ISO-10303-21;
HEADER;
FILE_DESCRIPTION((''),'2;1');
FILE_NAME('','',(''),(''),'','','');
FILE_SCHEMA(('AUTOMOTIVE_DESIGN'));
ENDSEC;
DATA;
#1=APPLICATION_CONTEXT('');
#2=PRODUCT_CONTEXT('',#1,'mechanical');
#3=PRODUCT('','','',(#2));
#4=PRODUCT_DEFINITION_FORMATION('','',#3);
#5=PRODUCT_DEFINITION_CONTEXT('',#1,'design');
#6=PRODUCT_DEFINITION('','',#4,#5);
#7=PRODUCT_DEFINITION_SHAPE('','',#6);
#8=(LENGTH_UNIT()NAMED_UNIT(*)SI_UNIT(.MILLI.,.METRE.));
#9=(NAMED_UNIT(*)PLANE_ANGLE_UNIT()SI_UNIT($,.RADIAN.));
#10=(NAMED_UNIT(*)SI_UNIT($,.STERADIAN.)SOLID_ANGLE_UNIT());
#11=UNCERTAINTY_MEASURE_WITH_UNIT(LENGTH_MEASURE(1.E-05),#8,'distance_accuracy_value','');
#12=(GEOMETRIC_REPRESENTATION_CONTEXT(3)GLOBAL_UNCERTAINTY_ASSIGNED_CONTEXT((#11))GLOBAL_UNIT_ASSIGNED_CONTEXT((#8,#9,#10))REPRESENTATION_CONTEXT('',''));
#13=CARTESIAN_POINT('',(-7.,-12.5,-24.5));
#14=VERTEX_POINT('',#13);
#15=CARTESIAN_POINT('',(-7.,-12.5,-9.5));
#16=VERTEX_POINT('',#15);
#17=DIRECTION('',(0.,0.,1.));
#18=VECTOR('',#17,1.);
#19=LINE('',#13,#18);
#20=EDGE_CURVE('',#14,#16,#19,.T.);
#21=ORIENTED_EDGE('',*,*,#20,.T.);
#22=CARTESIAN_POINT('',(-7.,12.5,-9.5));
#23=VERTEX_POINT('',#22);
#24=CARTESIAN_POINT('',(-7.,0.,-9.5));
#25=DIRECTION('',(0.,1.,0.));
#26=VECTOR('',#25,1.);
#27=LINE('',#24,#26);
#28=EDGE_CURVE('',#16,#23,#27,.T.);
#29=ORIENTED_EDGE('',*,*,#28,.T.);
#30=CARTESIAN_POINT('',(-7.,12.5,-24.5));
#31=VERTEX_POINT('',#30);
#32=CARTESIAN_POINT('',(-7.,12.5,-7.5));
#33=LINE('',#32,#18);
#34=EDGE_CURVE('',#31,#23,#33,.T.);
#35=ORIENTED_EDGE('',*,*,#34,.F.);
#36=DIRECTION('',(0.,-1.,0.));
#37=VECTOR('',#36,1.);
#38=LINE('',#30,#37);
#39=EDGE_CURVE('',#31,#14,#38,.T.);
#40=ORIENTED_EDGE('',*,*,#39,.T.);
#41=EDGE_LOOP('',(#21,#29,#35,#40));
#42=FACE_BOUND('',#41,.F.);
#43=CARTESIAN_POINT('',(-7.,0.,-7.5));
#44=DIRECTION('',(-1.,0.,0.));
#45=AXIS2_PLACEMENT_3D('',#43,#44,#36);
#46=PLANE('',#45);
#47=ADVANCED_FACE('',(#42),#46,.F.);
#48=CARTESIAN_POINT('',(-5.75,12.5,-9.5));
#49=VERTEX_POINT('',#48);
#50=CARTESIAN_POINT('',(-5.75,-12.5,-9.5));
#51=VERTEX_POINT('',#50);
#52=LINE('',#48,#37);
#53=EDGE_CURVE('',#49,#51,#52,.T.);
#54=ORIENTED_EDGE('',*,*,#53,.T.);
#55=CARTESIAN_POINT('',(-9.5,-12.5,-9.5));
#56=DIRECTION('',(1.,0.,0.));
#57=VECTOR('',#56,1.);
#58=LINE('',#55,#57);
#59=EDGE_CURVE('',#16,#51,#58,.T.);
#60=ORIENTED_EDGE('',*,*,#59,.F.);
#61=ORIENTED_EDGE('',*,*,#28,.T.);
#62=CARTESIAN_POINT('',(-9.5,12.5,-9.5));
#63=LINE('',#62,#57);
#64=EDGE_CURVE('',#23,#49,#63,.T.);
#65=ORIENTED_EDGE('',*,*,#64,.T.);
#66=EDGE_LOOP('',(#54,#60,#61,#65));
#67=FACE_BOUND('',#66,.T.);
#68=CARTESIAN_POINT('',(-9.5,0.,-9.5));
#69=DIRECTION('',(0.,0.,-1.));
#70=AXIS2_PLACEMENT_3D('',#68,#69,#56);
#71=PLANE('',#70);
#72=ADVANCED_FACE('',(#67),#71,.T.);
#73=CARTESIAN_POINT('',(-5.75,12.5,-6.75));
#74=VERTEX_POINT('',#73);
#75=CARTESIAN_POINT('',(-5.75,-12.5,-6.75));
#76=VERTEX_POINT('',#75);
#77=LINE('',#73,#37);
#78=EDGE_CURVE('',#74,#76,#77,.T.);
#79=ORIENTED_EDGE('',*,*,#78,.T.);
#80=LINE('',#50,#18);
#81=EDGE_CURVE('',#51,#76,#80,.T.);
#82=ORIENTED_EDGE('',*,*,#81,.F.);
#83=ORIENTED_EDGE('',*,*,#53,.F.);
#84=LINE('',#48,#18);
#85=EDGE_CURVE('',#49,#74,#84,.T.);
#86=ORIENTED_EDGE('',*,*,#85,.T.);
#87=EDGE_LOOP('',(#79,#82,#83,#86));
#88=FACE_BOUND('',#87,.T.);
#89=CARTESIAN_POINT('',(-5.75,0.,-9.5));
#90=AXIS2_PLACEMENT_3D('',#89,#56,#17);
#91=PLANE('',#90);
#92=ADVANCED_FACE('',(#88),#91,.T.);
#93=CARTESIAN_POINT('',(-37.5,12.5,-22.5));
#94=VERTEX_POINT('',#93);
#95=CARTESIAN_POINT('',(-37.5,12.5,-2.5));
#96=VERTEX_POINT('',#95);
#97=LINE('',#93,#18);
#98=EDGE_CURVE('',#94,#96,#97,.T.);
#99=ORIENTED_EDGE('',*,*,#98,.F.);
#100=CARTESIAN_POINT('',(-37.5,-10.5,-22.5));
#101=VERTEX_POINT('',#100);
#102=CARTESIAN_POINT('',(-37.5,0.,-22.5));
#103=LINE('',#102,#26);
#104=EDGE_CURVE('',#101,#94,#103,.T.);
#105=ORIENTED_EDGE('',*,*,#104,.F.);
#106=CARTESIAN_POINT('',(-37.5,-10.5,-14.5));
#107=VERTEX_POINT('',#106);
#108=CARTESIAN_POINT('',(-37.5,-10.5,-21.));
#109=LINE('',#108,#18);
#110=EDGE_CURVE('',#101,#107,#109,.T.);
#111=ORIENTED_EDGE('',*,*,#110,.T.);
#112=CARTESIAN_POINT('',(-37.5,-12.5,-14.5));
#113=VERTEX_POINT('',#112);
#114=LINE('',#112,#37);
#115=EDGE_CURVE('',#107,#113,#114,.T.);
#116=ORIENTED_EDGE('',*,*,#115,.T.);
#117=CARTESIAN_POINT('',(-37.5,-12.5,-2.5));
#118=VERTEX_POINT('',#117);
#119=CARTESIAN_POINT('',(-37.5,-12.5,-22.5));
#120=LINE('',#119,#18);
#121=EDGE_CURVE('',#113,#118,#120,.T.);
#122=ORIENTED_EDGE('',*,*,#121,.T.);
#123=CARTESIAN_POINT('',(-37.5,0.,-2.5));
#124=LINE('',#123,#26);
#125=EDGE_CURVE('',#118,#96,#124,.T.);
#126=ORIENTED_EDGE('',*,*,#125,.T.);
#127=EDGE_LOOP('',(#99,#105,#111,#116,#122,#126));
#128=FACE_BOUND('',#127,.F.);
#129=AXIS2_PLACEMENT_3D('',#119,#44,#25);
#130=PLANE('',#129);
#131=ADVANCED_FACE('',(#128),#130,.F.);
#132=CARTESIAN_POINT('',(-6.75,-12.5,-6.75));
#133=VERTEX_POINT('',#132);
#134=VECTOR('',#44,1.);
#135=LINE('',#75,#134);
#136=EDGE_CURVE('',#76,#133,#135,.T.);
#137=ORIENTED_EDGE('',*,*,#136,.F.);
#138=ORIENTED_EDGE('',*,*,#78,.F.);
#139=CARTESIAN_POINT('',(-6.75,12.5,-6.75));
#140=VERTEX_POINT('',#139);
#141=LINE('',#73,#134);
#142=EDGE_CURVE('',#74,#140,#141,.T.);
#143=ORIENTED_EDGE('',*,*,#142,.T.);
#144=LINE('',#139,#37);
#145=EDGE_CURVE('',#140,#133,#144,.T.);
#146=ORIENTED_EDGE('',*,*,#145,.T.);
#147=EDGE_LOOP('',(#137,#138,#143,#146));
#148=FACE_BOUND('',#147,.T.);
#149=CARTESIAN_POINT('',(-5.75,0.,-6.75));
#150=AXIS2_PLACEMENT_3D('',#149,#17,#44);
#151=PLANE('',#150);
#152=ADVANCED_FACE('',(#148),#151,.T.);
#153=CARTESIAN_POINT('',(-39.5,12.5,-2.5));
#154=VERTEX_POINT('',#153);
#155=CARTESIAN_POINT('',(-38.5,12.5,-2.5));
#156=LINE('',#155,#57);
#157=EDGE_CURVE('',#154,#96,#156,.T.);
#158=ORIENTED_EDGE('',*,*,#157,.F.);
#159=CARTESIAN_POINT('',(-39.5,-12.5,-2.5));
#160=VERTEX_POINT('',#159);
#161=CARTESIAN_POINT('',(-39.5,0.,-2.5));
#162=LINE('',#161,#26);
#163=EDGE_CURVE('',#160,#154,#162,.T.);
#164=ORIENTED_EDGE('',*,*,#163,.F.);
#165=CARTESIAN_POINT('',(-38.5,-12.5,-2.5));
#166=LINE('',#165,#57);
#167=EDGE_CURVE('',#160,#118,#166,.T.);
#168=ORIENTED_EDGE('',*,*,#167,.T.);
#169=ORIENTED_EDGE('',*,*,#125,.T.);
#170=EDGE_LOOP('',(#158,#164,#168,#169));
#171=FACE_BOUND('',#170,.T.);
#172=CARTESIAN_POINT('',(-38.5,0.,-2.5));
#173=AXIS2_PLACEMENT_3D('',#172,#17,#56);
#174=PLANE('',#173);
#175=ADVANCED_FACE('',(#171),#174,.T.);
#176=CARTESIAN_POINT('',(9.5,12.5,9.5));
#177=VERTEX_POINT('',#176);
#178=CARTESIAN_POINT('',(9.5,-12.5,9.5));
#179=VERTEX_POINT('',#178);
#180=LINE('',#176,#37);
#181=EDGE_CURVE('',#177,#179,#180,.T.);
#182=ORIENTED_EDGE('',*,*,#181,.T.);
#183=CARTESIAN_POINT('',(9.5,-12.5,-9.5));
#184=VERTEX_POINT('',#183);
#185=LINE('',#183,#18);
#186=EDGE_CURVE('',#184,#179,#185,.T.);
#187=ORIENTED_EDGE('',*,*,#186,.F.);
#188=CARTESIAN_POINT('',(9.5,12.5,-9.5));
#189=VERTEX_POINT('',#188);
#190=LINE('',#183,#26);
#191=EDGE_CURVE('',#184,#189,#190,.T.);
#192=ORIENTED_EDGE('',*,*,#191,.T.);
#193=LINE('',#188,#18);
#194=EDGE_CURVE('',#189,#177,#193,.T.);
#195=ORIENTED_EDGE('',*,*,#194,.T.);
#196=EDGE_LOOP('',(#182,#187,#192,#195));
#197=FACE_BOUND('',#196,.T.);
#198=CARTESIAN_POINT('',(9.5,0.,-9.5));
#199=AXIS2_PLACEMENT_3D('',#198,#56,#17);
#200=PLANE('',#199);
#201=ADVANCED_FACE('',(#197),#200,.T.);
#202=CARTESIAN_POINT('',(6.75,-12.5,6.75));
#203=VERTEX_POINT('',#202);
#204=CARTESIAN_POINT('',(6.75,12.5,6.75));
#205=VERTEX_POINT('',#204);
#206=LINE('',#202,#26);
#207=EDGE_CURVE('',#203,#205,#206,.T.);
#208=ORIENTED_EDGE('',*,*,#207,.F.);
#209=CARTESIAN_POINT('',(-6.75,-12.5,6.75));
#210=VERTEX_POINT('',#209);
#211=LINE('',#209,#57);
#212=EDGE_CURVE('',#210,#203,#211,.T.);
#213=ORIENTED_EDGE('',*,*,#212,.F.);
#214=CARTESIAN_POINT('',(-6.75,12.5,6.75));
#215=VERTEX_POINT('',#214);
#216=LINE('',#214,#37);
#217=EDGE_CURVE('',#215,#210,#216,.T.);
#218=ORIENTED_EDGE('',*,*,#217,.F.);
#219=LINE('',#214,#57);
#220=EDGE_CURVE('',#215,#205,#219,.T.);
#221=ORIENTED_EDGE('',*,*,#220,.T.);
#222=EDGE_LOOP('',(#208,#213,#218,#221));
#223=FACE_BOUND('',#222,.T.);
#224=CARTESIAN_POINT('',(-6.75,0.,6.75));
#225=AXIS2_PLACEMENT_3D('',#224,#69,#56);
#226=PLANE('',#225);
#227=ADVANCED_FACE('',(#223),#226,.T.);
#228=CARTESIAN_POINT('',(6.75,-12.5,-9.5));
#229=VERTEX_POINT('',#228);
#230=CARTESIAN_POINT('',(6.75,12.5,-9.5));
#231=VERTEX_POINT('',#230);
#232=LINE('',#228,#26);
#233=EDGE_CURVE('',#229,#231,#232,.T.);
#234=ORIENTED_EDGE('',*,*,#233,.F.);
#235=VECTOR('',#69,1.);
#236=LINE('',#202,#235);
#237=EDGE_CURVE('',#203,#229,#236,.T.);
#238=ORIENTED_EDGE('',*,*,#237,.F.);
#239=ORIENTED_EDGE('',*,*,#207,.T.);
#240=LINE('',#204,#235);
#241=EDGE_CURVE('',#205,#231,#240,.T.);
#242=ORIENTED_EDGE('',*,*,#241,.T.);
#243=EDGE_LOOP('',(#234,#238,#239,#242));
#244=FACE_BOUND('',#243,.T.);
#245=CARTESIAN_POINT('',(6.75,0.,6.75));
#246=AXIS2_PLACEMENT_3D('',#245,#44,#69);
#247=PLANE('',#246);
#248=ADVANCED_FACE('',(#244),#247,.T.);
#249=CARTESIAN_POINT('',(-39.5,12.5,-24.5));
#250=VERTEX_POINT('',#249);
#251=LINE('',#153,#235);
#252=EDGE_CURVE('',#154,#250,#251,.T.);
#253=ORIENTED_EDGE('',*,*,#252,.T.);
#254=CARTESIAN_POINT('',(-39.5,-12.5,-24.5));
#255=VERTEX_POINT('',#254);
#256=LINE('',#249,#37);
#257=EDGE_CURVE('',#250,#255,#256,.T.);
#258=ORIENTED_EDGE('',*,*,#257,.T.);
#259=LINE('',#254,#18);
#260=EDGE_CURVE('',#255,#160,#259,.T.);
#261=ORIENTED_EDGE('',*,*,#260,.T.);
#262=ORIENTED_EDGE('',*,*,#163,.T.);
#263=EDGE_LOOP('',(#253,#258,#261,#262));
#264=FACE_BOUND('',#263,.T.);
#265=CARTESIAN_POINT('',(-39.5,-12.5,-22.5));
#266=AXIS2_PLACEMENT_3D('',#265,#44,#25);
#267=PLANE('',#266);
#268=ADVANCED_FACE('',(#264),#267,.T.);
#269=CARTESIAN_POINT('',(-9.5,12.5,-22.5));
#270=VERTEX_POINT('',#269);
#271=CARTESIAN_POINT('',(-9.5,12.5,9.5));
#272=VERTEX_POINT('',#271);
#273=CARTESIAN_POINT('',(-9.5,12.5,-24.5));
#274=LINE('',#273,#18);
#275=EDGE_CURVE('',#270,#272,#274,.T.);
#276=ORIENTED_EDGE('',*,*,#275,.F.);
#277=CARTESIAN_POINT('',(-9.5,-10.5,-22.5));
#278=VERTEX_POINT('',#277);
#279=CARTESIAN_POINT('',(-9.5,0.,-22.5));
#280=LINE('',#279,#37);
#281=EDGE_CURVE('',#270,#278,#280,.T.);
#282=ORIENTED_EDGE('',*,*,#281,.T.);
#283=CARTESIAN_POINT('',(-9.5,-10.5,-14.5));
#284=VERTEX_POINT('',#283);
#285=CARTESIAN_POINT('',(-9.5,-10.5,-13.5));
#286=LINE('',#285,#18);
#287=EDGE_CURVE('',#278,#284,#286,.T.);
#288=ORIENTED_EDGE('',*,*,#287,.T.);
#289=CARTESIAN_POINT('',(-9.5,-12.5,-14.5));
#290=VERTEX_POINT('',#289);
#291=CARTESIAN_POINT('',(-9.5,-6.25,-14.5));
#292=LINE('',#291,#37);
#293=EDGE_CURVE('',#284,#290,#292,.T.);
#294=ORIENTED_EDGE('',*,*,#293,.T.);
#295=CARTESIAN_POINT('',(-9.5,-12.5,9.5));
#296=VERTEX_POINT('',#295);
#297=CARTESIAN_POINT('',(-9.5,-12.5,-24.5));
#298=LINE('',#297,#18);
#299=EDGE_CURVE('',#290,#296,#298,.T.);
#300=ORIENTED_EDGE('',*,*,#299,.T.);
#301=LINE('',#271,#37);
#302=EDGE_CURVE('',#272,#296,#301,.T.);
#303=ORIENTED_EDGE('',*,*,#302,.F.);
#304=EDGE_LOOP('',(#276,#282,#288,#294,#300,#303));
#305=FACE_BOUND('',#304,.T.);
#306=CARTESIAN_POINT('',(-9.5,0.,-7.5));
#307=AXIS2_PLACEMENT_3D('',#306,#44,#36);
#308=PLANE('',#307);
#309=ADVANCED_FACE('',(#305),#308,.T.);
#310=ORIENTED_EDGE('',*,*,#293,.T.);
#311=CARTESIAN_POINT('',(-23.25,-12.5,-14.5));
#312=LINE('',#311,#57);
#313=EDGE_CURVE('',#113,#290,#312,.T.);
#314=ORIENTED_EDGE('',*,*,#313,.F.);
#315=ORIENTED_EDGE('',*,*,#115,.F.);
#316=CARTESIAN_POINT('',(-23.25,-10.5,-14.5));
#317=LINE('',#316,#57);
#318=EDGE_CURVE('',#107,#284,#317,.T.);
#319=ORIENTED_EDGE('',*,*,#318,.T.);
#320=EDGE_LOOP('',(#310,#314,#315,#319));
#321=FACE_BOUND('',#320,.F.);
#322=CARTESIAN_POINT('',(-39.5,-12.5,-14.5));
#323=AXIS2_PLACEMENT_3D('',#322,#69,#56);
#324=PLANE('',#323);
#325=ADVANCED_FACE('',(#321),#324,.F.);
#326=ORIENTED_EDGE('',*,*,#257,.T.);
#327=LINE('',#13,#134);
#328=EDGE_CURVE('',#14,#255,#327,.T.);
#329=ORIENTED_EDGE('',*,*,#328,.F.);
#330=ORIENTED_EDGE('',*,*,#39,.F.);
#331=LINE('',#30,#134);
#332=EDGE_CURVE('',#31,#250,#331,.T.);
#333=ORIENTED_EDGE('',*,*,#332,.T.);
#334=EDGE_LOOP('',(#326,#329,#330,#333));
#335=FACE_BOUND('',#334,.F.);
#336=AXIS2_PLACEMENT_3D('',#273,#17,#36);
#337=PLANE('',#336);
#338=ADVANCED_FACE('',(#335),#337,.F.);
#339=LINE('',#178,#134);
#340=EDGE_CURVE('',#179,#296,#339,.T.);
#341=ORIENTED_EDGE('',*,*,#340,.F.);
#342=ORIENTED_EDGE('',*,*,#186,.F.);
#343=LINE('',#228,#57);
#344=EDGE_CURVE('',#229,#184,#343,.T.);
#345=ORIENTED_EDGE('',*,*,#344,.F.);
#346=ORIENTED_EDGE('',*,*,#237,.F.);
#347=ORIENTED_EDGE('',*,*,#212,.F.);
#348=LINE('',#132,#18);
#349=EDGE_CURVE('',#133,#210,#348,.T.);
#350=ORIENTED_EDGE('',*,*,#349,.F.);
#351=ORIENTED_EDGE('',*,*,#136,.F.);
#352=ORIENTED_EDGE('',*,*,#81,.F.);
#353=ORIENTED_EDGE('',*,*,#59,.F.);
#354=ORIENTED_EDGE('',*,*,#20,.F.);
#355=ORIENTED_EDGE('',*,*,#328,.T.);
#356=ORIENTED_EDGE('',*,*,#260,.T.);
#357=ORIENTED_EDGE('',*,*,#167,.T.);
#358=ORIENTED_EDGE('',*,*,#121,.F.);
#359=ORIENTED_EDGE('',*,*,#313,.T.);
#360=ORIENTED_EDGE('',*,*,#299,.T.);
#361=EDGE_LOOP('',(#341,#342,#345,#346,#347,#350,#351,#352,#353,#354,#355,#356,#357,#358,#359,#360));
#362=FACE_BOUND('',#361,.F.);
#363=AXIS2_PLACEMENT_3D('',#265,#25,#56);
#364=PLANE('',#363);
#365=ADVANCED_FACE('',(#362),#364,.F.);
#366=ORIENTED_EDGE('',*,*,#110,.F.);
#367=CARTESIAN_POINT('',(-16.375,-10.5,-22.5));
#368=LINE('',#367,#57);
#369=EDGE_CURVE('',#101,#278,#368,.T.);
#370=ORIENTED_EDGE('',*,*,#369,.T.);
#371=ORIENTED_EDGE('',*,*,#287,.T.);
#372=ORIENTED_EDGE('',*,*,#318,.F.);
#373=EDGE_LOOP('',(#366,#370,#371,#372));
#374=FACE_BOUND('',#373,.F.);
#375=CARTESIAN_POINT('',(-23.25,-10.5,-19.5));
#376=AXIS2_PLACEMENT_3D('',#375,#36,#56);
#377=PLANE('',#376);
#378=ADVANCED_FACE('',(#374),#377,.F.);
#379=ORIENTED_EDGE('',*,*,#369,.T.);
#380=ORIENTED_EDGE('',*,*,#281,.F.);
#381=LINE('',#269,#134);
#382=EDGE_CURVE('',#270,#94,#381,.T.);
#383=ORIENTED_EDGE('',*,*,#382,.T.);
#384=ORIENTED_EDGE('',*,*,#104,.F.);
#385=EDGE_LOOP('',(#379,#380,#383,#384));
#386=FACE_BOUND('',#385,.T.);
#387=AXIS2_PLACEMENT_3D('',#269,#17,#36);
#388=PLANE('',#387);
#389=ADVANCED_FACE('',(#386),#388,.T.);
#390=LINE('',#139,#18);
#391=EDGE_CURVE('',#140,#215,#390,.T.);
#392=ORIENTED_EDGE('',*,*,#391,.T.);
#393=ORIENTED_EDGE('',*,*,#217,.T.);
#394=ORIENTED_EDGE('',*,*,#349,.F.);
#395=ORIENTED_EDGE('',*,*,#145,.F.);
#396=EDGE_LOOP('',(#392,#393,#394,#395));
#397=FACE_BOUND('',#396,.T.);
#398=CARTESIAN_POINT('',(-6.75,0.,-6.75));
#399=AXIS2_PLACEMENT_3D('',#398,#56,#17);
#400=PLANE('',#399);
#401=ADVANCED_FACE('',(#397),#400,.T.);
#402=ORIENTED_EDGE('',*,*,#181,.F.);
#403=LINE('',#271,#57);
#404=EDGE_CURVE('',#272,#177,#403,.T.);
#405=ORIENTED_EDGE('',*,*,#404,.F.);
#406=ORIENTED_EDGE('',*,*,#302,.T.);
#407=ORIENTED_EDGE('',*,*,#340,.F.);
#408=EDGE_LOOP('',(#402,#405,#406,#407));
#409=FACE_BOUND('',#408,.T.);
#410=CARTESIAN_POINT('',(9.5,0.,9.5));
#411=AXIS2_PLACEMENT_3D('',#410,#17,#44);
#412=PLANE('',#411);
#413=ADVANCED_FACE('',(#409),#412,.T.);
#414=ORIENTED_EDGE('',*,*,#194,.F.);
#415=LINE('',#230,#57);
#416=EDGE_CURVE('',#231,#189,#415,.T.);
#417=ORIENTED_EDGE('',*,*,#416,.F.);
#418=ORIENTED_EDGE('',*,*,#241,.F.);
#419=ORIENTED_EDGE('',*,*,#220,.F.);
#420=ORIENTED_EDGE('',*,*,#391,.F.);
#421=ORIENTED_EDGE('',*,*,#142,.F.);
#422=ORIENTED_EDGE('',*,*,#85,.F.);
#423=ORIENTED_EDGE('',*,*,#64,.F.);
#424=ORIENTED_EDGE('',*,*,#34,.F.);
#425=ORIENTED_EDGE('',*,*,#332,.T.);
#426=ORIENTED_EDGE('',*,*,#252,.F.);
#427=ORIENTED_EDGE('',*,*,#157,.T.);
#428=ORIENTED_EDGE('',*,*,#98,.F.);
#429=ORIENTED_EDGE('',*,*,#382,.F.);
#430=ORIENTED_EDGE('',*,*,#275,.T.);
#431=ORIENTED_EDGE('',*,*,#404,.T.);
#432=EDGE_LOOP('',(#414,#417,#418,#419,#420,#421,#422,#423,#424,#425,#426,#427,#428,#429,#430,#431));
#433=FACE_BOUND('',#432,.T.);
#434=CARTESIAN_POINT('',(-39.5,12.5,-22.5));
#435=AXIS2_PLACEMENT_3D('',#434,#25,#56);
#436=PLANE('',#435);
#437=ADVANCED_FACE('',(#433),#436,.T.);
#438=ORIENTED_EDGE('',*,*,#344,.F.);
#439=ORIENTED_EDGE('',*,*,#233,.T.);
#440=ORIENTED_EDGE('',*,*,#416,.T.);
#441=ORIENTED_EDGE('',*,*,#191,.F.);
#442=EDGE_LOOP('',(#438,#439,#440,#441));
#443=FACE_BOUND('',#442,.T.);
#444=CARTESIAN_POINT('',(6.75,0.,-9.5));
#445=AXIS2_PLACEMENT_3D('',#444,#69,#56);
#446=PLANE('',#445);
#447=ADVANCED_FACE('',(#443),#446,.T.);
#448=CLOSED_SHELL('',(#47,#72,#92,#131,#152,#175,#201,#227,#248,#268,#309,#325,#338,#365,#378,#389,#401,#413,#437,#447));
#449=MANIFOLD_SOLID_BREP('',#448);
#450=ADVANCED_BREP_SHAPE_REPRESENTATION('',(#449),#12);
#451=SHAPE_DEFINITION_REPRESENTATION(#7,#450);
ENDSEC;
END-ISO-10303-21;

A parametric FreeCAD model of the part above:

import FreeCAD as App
import Part
import Sketcher

V = App.Vector
Q = App.Units.Quantity


def add_polygon(sketch, points):
    """Adds a closed chain of lines whose ends are joined by coincident constraints."""
    first, n = sketch.GeometryCount, len(points)
    for a, b in zip(points, points[1:] + points[:1]):
        sketch.addGeometry(Part.LineSegment(App.Vector(*a, 0), App.Vector(*b, 0)), False)
    for i in range(n):
        sketch.addConstraint(Sketcher.Constraint("Coincident", first + i, 2, first + (i + 1) % n, 1))

doc = App.newDocument("Part")
body = doc.addObject("PartDesign::Body", "Body")

sketch1 = doc.addObject("Sketcher::SketchObject", "Sketch")
body.addObject(sketch1)
sketch1.AttachmentSupport = (doc.XZ_Plane, [""])
sketch1.MapMode = "FlatFace"
add_polygon(sketch1, [(9.5, -9.5), (9.5, 9.5), (-9.5, 9.5), (-9.5, -9.5), (-5.8, -9.5), (-5.8, -6.8), (-6.8, -6.8), (-6.8, 6.8), (6.8, 6.8), (6.8, -9.5)])
sketch1.addConstraint([
    Sketcher.Constraint("Vertical", 0),
    Sketcher.Constraint("Horizontal", 1),
    Sketcher.Constraint("Vertical", 2),
    Sketcher.Constraint("Horizontal", 3),
    Sketcher.Constraint("Vertical", 4),
    Sketcher.Constraint("Horizontal", 5),
    Sketcher.Constraint("Vertical", 6),
    Sketcher.Constraint("Horizontal", 7),
    Sketcher.Constraint("Vertical", 8),
    Sketcher.Constraint("Horizontal", 9),
    Sketcher.Constraint("Symmetric", 0, 2, 2, 2, -1, 1),
    Sketcher.Constraint("Symmetric", 5, 2, 7, 2, -1, 1),
    Sketcher.Constraint("Horizontal", 3, 2, 8, 2),
    Sketcher.Constraint("Equal", 1, 0),
    Sketcher.Constraint("Equal", 9, 4),
    Sketcher.Constraint("DistanceX", 1, 2, 1, 1, Q("19 mm")),
    Sketcher.Constraint("DistanceX", 5, 2, 5, 1, Q("1 mm")),
    Sketcher.Constraint("DistanceX", 7, 1, 7, 2, Q("13.5 mm")),
])
pad1 = doc.addObject("PartDesign::Pad", "Pad")
body.addObject(pad1)
pad1.Profile = sketch1
pad1.Length = 25
pad1.Midplane = True

sketch2 = doc.addObject("Sketcher::SketchObject", "Sketch001")
body.addObject(sketch2)
sketch2.AttachmentSupport = (doc.YZ_Plane, [""])
sketch2.MapMode = "FlatFace"
sketch2.AttachmentOffset = App.Placement(V(0, 0, -9.5), App.Rotation())
add_polygon(sketch2, [(12, 10), (12, -24), (-12, -24), (-12, 10)])
sketch2.addConstraint([
    Sketcher.Constraint("Vertical", 0),
    Sketcher.Constraint("Horizontal", 1),
    Sketcher.Constraint("Vertical", 2),
    Sketcher.Constraint("Horizontal", 3),
    Sketcher.Constraint("DistanceX", 1, 2, 1, 1, Q("25 mm")),
    Sketcher.Constraint("DistanceY", 0, 2, 0, 1, Q("34 mm")),
    Sketcher.Constraint("DistanceX", -1, 1, 0, 2, Q("12.5 mm")),
    Sketcher.Constraint("DistanceY", 0, 2, -1, 1, Q("24.5 mm")),
])
pad2 = doc.addObject("PartDesign::Pad", "Pad001")
body.addObject(pad2)
pad2.Profile = sketch2
pad2.Length = 2.5

sketch3 = doc.addObject("Sketcher::SketchObject", "Sketch002")
body.addObject(sketch3)
sketch3.AttachmentSupport = (doc.YZ_Plane, [""])
sketch3.MapMode = "FlatFace"
sketch3.AttachmentOffset = App.Placement(V(0, 0, -9.5), App.Rotation())
add_polygon(sketch3, [(12.5, -22.5), (12.5, -24.5), (-12.5, -24.5), (-12.5, -22.5)])
sketch3.addConstraint([
    Sketcher.Constraint("Vertical", 0),
    Sketcher.Constraint("Horizontal", 1),
    Sketcher.Constraint("Vertical", 2),
    Sketcher.Constraint("Horizontal", 3),
    Sketcher.Constraint("DistanceX", 1, 2, 1, 1, Q("25 mm")),
    Sketcher.Constraint("DistanceY", 0, 2, 0, 1, Q("2 mm")),
    Sketcher.Constraint("DistanceX", -1, 1, 0, 2, Q("12.5 mm")),
    Sketcher.Constraint("DistanceY", 0, 2, -1, 1, Q("24.5 mm")),
])
pad3 = doc.addObject("PartDesign::Pad", "Pad002")
body.addObject(pad3)
pad3.Profile = sketch3
pad3.Length = 30
pad3.Reversed = True

sketch4 = doc.addObject("Sketcher::SketchObject", "Sketch003")
body.addObject(sketch4)
sketch4.AttachmentSupport = (doc.XY_Plane, [""])
sketch4.MapMode = "FlatFace"
sketch4.AttachmentOffset = App.Placement(V(0, 0, -22.5), App.Rotation())
add_polygon(sketch4, [(-39.5, 12.5), (-39.5, -12.5), (-37.5, -12.5), (-37.5, 12.5)])
sketch4.addConstraint([
    Sketcher.Constraint("Vertical", 0),
    Sketcher.Constraint("Horizontal", 1),
    Sketcher.Constraint("Vertical", 2),
    Sketcher.Constraint("Horizontal", 3),
    Sketcher.Constraint("DistanceX", 1, 1, 1, 2, Q("2 mm")),
    Sketcher.Constraint("DistanceY", 0, 2, 0, 1, Q("25 mm")),
    Sketcher.Constraint("DistanceX", 0, 2, -1, 1, Q("39.5 mm")),
    Sketcher.Constraint("DistanceY", 0, 2, -1, 1, Q("12.5 mm")),
])
pad4 = doc.addObject("PartDesign::Pad", "Pad003")
body.addObject(pad4)
pad4.Profile = sketch4
pad4.Length = 20

sketch5 = doc.addObject("Sketcher::SketchObject", "Sketch004")
body.addObject(sketch5)
sketch5.AttachmentSupport = (doc.XZ_Plane, [""])
sketch5.MapMode = "FlatFace"
sketch5.AttachmentOffset = App.Placement(V(0, 0, 12.5), App.Rotation())
add_polygon(sketch5, [(-40, -14), (-40, -24), (-7, -24), (-7, -14)])
sketch5.addConstraint([
    Sketcher.Constraint("Vertical", 0),
    Sketcher.Constraint("Horizontal", 1),
    Sketcher.Constraint("Vertical", 2),
    Sketcher.Constraint("Horizontal", 3),
    Sketcher.Constraint("DistanceY", 0, 2, 0, 1, Q("10 mm")),
    Sketcher.Constraint("DistanceX", 1, 1, 1, 2, Q("32.5 mm")),
    Sketcher.Constraint("DistanceX", 1, 2, -1, 1, Q("7 mm")),
    Sketcher.Constraint("DistanceY", 0, 2, -1, 1, Q("24.5 mm")),
])
pad5 = doc.addObject("PartDesign::Pad", "Pad004")
body.addObject(pad5)
pad5.Profile = sketch5
pad5.Length = 2
pad5.Reversed = True

doc.recompute()
